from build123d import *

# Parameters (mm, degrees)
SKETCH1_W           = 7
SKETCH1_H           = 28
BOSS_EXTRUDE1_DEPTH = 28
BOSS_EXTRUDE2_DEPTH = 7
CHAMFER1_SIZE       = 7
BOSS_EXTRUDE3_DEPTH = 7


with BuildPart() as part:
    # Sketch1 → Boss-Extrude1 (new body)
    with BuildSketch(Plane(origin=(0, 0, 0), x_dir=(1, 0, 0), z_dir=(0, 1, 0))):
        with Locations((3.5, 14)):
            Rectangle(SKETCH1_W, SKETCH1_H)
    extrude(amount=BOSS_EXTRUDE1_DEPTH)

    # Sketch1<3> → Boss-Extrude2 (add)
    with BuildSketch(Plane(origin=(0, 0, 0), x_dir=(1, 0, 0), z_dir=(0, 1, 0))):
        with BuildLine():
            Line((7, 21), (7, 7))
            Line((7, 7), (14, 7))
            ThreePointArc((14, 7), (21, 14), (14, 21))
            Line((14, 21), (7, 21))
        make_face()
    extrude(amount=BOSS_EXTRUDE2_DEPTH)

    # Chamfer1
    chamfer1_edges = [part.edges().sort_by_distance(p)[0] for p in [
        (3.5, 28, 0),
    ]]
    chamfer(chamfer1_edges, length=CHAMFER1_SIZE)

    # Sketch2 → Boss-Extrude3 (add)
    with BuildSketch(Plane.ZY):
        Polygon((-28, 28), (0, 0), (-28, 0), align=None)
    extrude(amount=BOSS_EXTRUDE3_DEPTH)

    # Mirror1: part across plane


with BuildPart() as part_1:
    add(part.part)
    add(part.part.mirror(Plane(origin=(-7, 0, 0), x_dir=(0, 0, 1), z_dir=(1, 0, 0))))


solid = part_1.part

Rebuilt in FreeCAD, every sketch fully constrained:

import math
import FreeCAD as App
import Part
import Sketcher
from FreeCAD import Vector
Q = App.Units.Quantity


def edges_at(feature, points):
    """Names of the edges that pass closest to the given points."""
    edges = feature.Shape.Edges
    near = lambda p: min(range(len(edges)), key=lambda i: edges[i].distToShape(Part.Vertex(*p))[0])
    return sorted({f"Edge{near(p) + 1}" for p in points})

doc = App.newDocument("Part")
params = doc.addObject("Spreadsheet::Sheet", "Params")
for row, (alias, value) in enumerate([
    ("sketch1_width", "7 mm"),
    ("sketch1_height", "28 mm"),
    ("pad1_length", "28 mm"),
    ("sketch2_radius", "7 mm"),
    ("sketch2_width", "7 mm"),
    ("pad2_length", "7 mm"),
    ("chamfer_size", "7 mm"),
    ("sketch3_width", "28 mm"),
    ("pad3_length", "7 mm"),
], start=1):
    params.set(f"A{row}", alias)
    params.set(f"B{row}", "=" + value)
    params.setAlias(f"B{row}", alias)

body = doc.addObject("PartDesign::Body", "Body")

# Sketch on XZ plane
sketch1 = body.newObject("Sketcher::SketchObject", "Sketch")
sketch1.AttachmentSupport = (doc.getObject("XZ_Plane"), [""])
sketch1.MapMode = "FlatFace"
sketch1.addGeometry([
    Part.LineSegment(Vector(0, -28, 0), Vector(0, 0, 0)),
    Part.LineSegment(Vector(0, 0, 0), Vector(7, 0, 0)),
    Part.LineSegment(Vector(7, 0, 0), Vector(7, -28, 0)),
    Part.LineSegment(Vector(7, -28, 0), Vector(0, -28, 0)),
], False)
sketch1.addConstraint([
    Sketcher.Constraint("Coincident", 0, 2, 1, 1),
    Sketcher.Constraint("Coincident", 1, 2, 2, 1),
    Sketcher.Constraint("Coincident", 2, 2, 3, 1),
    Sketcher.Constraint("Coincident", 3, 2, 0, 1),
    Sketcher.Constraint("Vertical", 0),
    Sketcher.Constraint("Horizontal", 1),
    Sketcher.Constraint("Vertical", 2),
    Sketcher.Constraint("Horizontal", 3),
    Sketcher.Constraint("Coincident", 0, 2, -1, 1),
    Sketcher.Constraint("DistanceX", 1, 1, 1, 2, Q("7 mm")),
    Sketcher.Constraint("DistanceY", 0, 1, 0, 2, Q("28 mm")),
])
sketch1.setExpression("Constraints[9]", "Params.sketch1_width")
sketch1.setExpression("Constraints[10]", "Params.sketch1_height")
pad1 = body.newObject("PartDesign::Pad", "Pad")
pad1.Profile = sketch1
pad1.setExpression("Length", "Params.pad1_length")
pad1.Reversed = True

# Sketch on XZ plane
sketch2 = body.newObject("Sketcher::SketchObject", "Sketch001")
sketch2.AttachmentSupport = (doc.getObject("XZ_Plane"), [""])
sketch2.MapMode = "FlatFace"
sketch2.addGeometry([
    Part.LineSegment(Vector(7, -21, 0), Vector(7, -7, 0)),
    Part.LineSegment(Vector(7, -7, 0), Vector(14, -7, 0)),
    Part.ArcOfCircle(Part.Circle(Vector(14, -14, 0), Vector(0, 0, 1), 7), math.radians(-90), math.radians(90)),
    Part.LineSegment(Vector(14, -21, 0), Vector(7, -21, 0)),
], False)
sketch2.addConstraint([
    Sketcher.Constraint("Coincident", 0, 2, 1, 1),
    Sketcher.Constraint("Tangent", 1, 2, 2, 2),
    Sketcher.Constraint("Tangent", 2, 1, 3, 1),
    Sketcher.Constraint("Coincident", 3, 2, 0, 1),
    Sketcher.Constraint("Vertical", 0),
    Sketcher.Constraint("Horizontal", 1),
    Sketcher.Constraint("Horizontal", 3),
    Sketcher.Constraint("Radius", 2, Q("7 mm")),
    Sketcher.Constraint("DistanceX", 1, 1, 1, 2, Q("7 mm")),
    Sketcher.Constraint("DistanceX", -1, 1, 2, 3, Q("14 mm")),
    Sketcher.Constraint("DistanceY", 2, 3, -1, 1, Q("14 mm")),
])
sketch2.setExpression("Constraints[7]", "Params.sketch2_radius")
sketch2.setExpression("Constraints[8]", "Params.sketch2_width")
pad2 = body.newObject("PartDesign::Pad", "Pad001")
pad2.Profile = sketch2
pad2.setExpression("Length", "Params.pad2_length")
pad2.Reversed = True
doc.recompute()

chamfer = body.newObject("PartDesign::Chamfer", "Chamfer")
chamfer.Base = (pad2, edges_at(pad2, [(3.5, 28, 0)]))
chamfer.setExpression("Size", "Params.chamfer_size")

# Sketch on YZ plane
sketch3 = body.newObject("Sketcher::SketchObject", "Sketch002")
sketch3.AttachmentSupport = (doc.getObject("YZ_Plane"), [""])
sketch3.MapMode = "FlatFace"
sketch3.addGeometry([
    Part.LineSegment(Vector(0, 0, 0), Vector(28, -28, 0)),
    Part.LineSegment(Vector(28, -28, 0), Vector(0, -28, 0)),
    Part.LineSegment(Vector(0, -28, 0), Vector(0, 0, 0)),
], False)
sketch3.addConstraint([
    Sketcher.Constraint("Coincident", 0, 2, 1, 1),
    Sketcher.Constraint("Coincident", 1, 2, 2, 1),
    Sketcher.Constraint("Coincident", 2, 2, 0, 1),
    Sketcher.Constraint("Horizontal", 1),
    Sketcher.Constraint("Vertical", 2),
    Sketcher.Constraint("Coincident", 2, 2, -1, 1),
    Sketcher.Constraint("Equal", 1, 2),
    Sketcher.Constraint("DistanceX", 1, 2, 1, 1, Q("28 mm")),
])
sketch3.setExpression("Constraints[7]", "Params.sketch3_width")
pad3 = body.newObject("PartDesign::Pad", "Pad002")
pad3.Profile = sketch3
pad3.setExpression("Length", "Params.pad3_length")
pad3.Reversed = True
body2 = doc.addObject("PartDesign::Body", "Body001")
doc.recompute()

body2.BaseFeature = body
doc.recompute()

mirroring = doc.addObject("Part::Mirroring", "Mirroring")
mirroring.Source = body
mirroring.Base = Vector(-7, 0, 0)
mirroring.Normal = Vector(1, 0, 0)
body3 = doc.addObject("PartDesign::Body", "Body002")
body3.BaseFeature = mirroring
boolean = body2.newObject("PartDesign::Boolean", "Boolean")
boolean.Type = "Fuse"
boolean.addObjects([body3])
doc.recompute()
mirroring.Visibility = False

doc.recompute()
